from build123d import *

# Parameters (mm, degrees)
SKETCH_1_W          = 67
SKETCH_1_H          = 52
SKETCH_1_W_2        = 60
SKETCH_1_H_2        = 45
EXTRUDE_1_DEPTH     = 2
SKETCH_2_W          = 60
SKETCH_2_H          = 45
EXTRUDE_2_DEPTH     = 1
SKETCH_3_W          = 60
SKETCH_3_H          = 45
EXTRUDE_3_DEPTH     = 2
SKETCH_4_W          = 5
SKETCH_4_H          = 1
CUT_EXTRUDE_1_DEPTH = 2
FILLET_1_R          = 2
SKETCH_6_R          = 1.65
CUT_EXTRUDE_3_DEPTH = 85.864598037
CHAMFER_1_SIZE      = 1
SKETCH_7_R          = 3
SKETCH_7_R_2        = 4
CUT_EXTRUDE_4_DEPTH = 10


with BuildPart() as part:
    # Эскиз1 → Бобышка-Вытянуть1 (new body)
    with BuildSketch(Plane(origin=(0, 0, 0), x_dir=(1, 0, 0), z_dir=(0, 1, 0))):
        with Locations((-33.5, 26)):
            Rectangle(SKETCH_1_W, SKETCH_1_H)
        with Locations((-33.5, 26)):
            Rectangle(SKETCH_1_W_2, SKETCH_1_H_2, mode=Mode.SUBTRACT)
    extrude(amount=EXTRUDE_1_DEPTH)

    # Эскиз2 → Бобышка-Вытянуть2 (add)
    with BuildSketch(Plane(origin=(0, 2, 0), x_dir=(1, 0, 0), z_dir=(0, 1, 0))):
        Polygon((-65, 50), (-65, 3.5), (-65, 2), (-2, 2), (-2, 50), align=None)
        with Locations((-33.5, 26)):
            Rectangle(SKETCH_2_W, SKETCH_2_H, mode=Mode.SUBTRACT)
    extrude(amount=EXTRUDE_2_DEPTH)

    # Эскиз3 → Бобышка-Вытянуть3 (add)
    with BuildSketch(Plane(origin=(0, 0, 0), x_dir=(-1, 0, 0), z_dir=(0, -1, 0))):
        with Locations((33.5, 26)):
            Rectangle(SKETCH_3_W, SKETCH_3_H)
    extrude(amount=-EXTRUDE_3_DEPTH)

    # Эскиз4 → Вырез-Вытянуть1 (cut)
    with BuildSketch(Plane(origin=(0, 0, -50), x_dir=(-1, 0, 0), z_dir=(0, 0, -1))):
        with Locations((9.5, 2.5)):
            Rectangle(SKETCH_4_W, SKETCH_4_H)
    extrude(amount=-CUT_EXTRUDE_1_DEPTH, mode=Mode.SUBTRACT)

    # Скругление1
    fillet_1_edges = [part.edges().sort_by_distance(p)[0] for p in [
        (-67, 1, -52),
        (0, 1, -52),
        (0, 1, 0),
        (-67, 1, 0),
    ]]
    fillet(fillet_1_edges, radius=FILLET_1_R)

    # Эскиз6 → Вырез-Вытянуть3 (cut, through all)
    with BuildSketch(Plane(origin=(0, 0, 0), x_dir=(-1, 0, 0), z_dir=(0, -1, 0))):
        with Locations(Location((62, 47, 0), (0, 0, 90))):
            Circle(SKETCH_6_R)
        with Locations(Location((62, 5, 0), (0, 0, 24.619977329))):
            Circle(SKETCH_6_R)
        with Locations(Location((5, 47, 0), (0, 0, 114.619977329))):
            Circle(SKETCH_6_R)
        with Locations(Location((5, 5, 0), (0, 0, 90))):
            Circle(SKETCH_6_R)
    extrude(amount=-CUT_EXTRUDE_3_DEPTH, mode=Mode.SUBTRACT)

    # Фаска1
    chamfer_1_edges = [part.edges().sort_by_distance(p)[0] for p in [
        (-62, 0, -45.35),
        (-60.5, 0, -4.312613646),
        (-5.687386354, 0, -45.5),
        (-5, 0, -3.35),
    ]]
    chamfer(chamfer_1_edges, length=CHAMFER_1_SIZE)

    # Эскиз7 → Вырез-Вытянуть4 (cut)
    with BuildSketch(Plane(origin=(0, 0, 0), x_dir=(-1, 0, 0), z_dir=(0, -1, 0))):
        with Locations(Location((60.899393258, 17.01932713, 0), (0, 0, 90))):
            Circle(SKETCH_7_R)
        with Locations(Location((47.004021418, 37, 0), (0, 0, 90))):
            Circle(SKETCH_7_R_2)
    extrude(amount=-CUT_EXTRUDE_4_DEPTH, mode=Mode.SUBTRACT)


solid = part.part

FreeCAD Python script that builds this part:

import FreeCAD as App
import Part
import Sketcher


def edges_at(feature, points):
    """Names of the edges that pass closest to the given points."""
    edges = feature.Shape.Edges
    near = lambda p: min(range(len(edges)), key=lambda i: edges[i].distToShape(Part.Vertex(*p))[0])
    return sorted({f"Edge{near(p) + 1}" for p in points})

doc = App.newDocument("Part")
params = doc.addObject("Spreadsheet::Sheet", "Params")
for row, (alias, value) in enumerate([
    ("sketch1_width", "67 mm"),
    ("sketch1_width2", "60 mm"),
    ("sketch1_height", "52 mm"),
    ("sketch1_height2", "45 mm"),
    ("pad1_length", "2 mm"),
    ("sketch2_width", "63 mm"),
    ("sketch2_width2", "60 mm"),
    ("sketch2_height", "48 mm"),
    ("sketch2_height2", "45 mm"),
    ("pad2_length", "1 mm"),
    ("sketch3_width", "60 mm"),
    ("sketch3_height", "45 mm"),
    ("pad3_length", "2 mm"),
    ("sketch4_width", "5 mm"),
    ("sketch4_height", "1 mm"),
    ("pocket1_length", "2 mm"),
    ("fillet_radius", "2 mm"),
    ("sketch5_diameter", "3.3 mm"),
    ("chamfer_size", "1 mm"),
    ("sketch6_diameter", "6 mm"),
    ("sketch6_diameter2", "8 mm"),
    ("pocket3_length", "10 mm"),
], start=1):
    params.set(f"A{row}", alias)
    params.set(f"B{row}", "=" + value)
    params.setAlias(f"B{row}", alias)

body = doc.addObject("PartDesign::Body", "Body")

# Sketch on XZ plane
sketch1 = body.newObject("Sketcher::SketchObject", "Sketch")
sketch1.AttachmentSupport = (doc.getObject("XZ_Plane"), [""])
sketch1.MapMode = "FlatFace"
sketch1.addGeometry([
    Part.LineSegment(App.Vector(-67, -52, 0), App.Vector(-67, 0, 0)),  # 0
    Part.LineSegment(App.Vector(-67, 0, 0), App.Vector(0, 0, 0)),  # 1
    Part.LineSegment(App.Vector(0, 0, 0), App.Vector(0, -52, 0)),  # 2
    Part.LineSegment(App.Vector(0, -52, 0), App.Vector(-67, -52, 0)),  # 3
    Part.LineSegment(App.Vector(-4, -4, 0), App.Vector(-64, -4, 0)),  # 4
    Part.LineSegment(App.Vector(-64, -4, 0), App.Vector(-64, -48, 0)),  # 5
    Part.LineSegment(App.Vector(-64, -48, 0), App.Vector(-4, -48, 0)),  # 6
    Part.LineSegment(App.Vector(-4, -48, 0), App.Vector(-4, -4, 0)),  # 7
], False)
sketch1.addConstraint([
    Sketcher.Constraint("Coincident", 0, 2, 1, 1),
    Sketcher.Constraint("Coincident", 1, 2, 2, 1),
    Sketcher.Constraint("Coincident", 2, 2, 3, 1),
    Sketcher.Constraint("Coincident", 3, 2, 0, 1),
    Sketcher.Constraint("Coincident", 4, 2, 5, 1),
    Sketcher.Constraint("Coincident", 5, 2, 6, 1),
    Sketcher.Constraint("Coincident", 6, 2, 7, 1),
    Sketcher.Constraint("Coincident", 7, 2, 4, 1),
    Sketcher.Constraint("Vertical", 0),
    Sketcher.Constraint("Horizontal", 1),
    Sketcher.Constraint("Vertical", 2),
    Sketcher.Constraint("Horizontal", 3),
    Sketcher.Constraint("Horizontal", 4),
    Sketcher.Constraint("Vertical", 5),
    Sketcher.Constraint("Horizontal", 6),
    Sketcher.Constraint("Vertical", 7),
    Sketcher.Constraint("Coincident", 1, 2, -1, 1),
    Sketcher.Constraint("DistanceX", 1, 1, 1, 2, 67.0),
    Sketcher.Constraint("DistanceX", 4, 2, 4, 1, 60.0),
    Sketcher.Constraint("DistanceY", 0, 1, 0, 2, 52.0),
    Sketcher.Constraint("DistanceY", 5, 2, 5, 1, 45.0),
    Sketcher.Constraint("DistanceX", 4, 2, -1, 1, 63.5),
    Sketcher.Constraint("DistanceY", 4, 2, -1, 1, 3.5),
])
sketch1.setExpression("Constraints[17]", "Params.sketch1_width")
sketch1.setExpression("Constraints[18]", "Params.sketch1_width2")
sketch1.setExpression("Constraints[19]", "Params.sketch1_height")
sketch1.setExpression("Constraints[20]", "Params.sketch1_height2")
pad1 = body.newObject("PartDesign::Pad", "Pad")
pad1.Profile = sketch1
pad1.setExpression("Length", "Params.pad1_length")
pad1.Reversed = True

# Sketch on XZ plane
sketch2 = body.newObject("Sketcher::SketchObject", "Sketch001")
sketch2.AttachmentSupport = (doc.getObject("XZ_Plane"), [""])
sketch2.MapMode = "FlatFace"
sketch2.AttachmentOffset = App.Placement(App.Vector(0, 0, -2), App.Rotation())
sketch2.addGeometry([
    Part.LineSegment(App.Vector(-65, -50, 0), App.Vector(-65, -2, 0)),  # 0
    Part.LineSegment(App.Vector(-65, -2, 0), App.Vector(-2, -2, 0)),  # 1
    Part.LineSegment(App.Vector(-2, -2, 0), App.Vector(-2, -50, 0)),  # 2
    Part.LineSegment(App.Vector(-2, -50, 0), App.Vector(-65, -50, 0)),  # 3
    Part.LineSegment(App.Vector(-4, -4, 0), App.Vector(-64, -4, 0)),  # 4
    Part.LineSegment(App.Vector(-64, -4, 0), App.Vector(-64, -48, 0)),  # 5
    Part.LineSegment(App.Vector(-64, -48, 0), App.Vector(-4, -48, 0)),  # 6
    Part.LineSegment(App.Vector(-4, -48, 0), App.Vector(-4, -4, 0)),  # 7
], False)
sketch2.addConstraint([
    Sketcher.Constraint("Coincident", 0, 2, 1, 1),
    Sketcher.Constraint("Coincident", 1, 2, 2, 1),
    Sketcher.Constraint("Coincident", 2, 2, 3, 1),
    Sketcher.Constraint("Coincident", 3, 2, 0, 1),
    Sketcher.Constraint("Coincident", 4, 2, 5, 1),
    Sketcher.Constraint("Coincident", 5, 2, 6, 1),
    Sketcher.Constraint("Coincident", 6, 2, 7, 1),
    Sketcher.Constraint("Coincident", 7, 2, 4, 1),
    Sketcher.Constraint("Vertical", 0),
    Sketcher.Constraint("Horizontal", 1),
    Sketcher.Constraint("Vertical", 2),
    Sketcher.Constraint("Horizontal", 3),
    Sketcher.Constraint("Horizontal", 4),
    Sketcher.Constraint("Vertical", 5),
    Sketcher.Constraint("Horizontal", 6),
    Sketcher.Constraint("Vertical", 7),
    Sketcher.Constraint("DistanceX", 1, 1, 1, 2, 63.0),
    Sketcher.Constraint("DistanceX", 4, 2, 4, 1, 60.0),
    Sketcher.Constraint("DistanceY", 0, 1, 0, 2, 48.0),
    Sketcher.Constraint("DistanceY", 5, 2, 5, 1, 45.0),
    Sketcher.Constraint("DistanceX", 0, 2, -1, 1, 65.0),
    Sketcher.Constraint("DistanceY", 0, 2, -1, 1, 2.0),
    Sketcher.Constraint("DistanceX", 4, 2, -1, 1, 63.5),
    Sketcher.Constraint("DistanceY", 4, 2, -1, 1, 3.5),
])
sketch2.setExpression("Constraints[16]", "Params.sketch2_width")
sketch2.setExpression("Constraints[17]", "Params.sketch2_width2")
sketch2.setExpression("Constraints[18]", "Params.sketch2_height")
sketch2.setExpression("Constraints[19]", "Params.sketch2_height2")
pad2 = body.newObject("PartDesign::Pad", "Pad001")
pad2.Profile = sketch2
pad2.setExpression("Length", "Params.pad2_length")
pad2.Reversed = True

# Sketch on XZ plane
sketch3 = body.newObject("Sketcher::SketchObject", "Sketch002")
sketch3.AttachmentSupport = (doc.getObject("XZ_Plane"), [""])
sketch3.MapMode = "FlatFace"
sketch3.addGeometry([
    Part.LineSegment(App.Vector(-4, -48, 0), App.Vector(-4, -4, 0)),
    Part.LineSegment(App.Vector(-4, -4, 0), App.Vector(-64, -4, 0)),
    Part.LineSegment(App.Vector(-64, -4, 0), App.Vector(-64, -48, 0)),
    Part.LineSegment(App.Vector(-64, -48, 0), App.Vector(-4, -48, 0)),
], False)
sketch3.addConstraint([
    Sketcher.Constraint("Coincident", 0, 2, 1, 1),
    Sketcher.Constraint("Coincident", 1, 2, 2, 1),
    Sketcher.Constraint("Coincident", 2, 2, 3, 1),
    Sketcher.Constraint("Coincident", 3, 2, 0, 1),
    Sketcher.Constraint("Vertical", 0),
    Sketcher.Constraint("Horizontal", 1),
    Sketcher.Constraint("Vertical", 2),
    Sketcher.Constraint("Horizontal", 3),
    Sketcher.Constraint("DistanceX", 1, 2, 1, 1, 60.0),
    Sketcher.Constraint("DistanceY", 0, 1, 0, 2, 45.0),
    Sketcher.Constraint("DistanceX", 0, 2, -1, 1, 3.5),
    Sketcher.Constraint("DistanceY", 0, 2, -1, 1, 3.5),
])
sketch3.setExpression("Constraints[8]", "Params.sketch3_width")
sketch3.setExpression("Constraints[9]", "Params.sketch3_height")
pad3 = body.newObject("PartDesign::Pad", "Pad002")
pad3.Profile = sketch3
pad3.setExpression("Length", "Params.pad3_length")
pad3.Reversed = True

# Sketch on XY plane
sketch4 = body.newObject("Sketcher::SketchObject", "Sketch003")
sketch4.AttachmentSupport = (doc.getObject("XY_Plane"), [""])
sketch4.MapMode = "FlatFace"
sketch4.AttachmentOffset = App.Placement(App.Vector(0, 0, -50), App.Rotation())
sketch4.addGeometry([
    Part.LineSegment(App.Vector(-7, 3, 0), App.Vector(-7, 2, 0)),
    Part.LineSegment(App.Vector(-7, 2, 0), App.Vector(-12, 2, 0)),
    Part.LineSegment(App.Vector(-12, 2, 0), App.Vector(-12, 3, 0)),
    Part.LineSegment(App.Vector(-12, 3, 0), App.Vector(-7, 3, 0)),
], False)
sketch4.addConstraint([
    Sketcher.Constraint("Coincident", 0, 2, 1, 1),
    Sketcher.Constraint("Coincident", 1, 2, 2, 1),
    Sketcher.Constraint("Coincident", 2, 2, 3, 1),
    Sketcher.Constraint("Coincident", 3, 2, 0, 1),
    Sketcher.Constraint("Vertical", 0),
    Sketcher.Constraint("Horizontal", 1),
    Sketcher.Constraint("Vertical", 2),
    Sketcher.Constraint("Horizontal", 3),
    Sketcher.Constraint("DistanceX", 1, 2, 1, 1, 5.0),
    Sketcher.Constraint("DistanceY", 0, 2, 0, 1, 1.0),
    Sketcher.Constraint("DistanceX", 0, 2, -1, 1, 7.0),
    Sketcher.Constraint("DistanceY", -1, 1, 0, 2, 2.0),
])
sketch4.setExpression("Constraints[8]", "Params.sketch4_width")
sketch4.setExpression("Constraints[9]", "Params.sketch4_height")
pocket1 = body.newObject("PartDesign::Pocket", "Pocket")
pocket1.Profile = sketch4
pocket1.setExpression("Length", "Params.pocket1_length")
pocket1.Reversed = True
doc.recompute()

fillet = body.newObject("PartDesign::Fillet", "Fillet")
fillet.Base = (pocket1, edges_at(pocket1, [
    (-67, 1, -52),
    (0, 1, -52),
    (0, 1, 0),
    (-67, 1, 0),
]))
fillet.setExpression("Radius", "Params.fillet_radius")

# Sketch on XZ plane
sketch5 = body.newObject("Sketcher::SketchObject", "Sketch004")
sketch5.AttachmentSupport = (doc.getObject("XZ_Plane"), [""])
sketch5.MapMode = "FlatFace"
sketch5.addGeometry([
    Part.Circle(App.Vector(-62, -47, 0), App.Vector(0, 0, 1), 1.6),
    Part.Circle(App.Vector(-62, -5, 0), App.Vector(0, 0, 1), 1.6),
    Part.Circle(App.Vector(-5, -47, 0), App.Vector(0, 0, 1), 1.6),
    Part.Circle(App.Vector(-5, -5, 0), App.Vector(0, 0, 1), 1.6),
], False)
sketch5.addConstraint([
    Sketcher.Constraint("Equal", 0, 1),
    Sketcher.Constraint("Equal", 1, 2),
    Sketcher.Constraint("Equal", 2, 3),
    Sketcher.Constraint("Horizontal", 0, 3, 2, 3),
    Sketcher.Constraint("Horizontal", 1, 3, 3, 3),
    Sketcher.Constraint("Vertical", 0, 3, 1, 3),
    Sketcher.Constraint("Vertical", 2, 3, 3, 3),
    Sketcher.Constraint("Diameter", 0, 3.3),
    Sketcher.Constraint("DistanceX", 0, 3, -1, 1, 62.0),
    Sketcher.Constraint("DistanceY", 0, 3, -1, 1, 47.0),
    Sketcher.Constraint("DistanceY", 1, 3, -1, 1, 5.0),
    Sketcher.Constraint("DistanceX", 2, 3, -1, 1, 5.0),
])
sketch5.setExpression("Constraints[7]", "Params.sketch5_diameter")
pocket2 = body.newObject("PartDesign::Pocket", "Pocket001")
pocket2.Profile = sketch5
pocket2.Type = "ThroughAll"
doc.recompute()

chamfer = body.newObject("PartDesign::Chamfer", "Chamfer")
chamfer.Base = (pocket2, edges_at(pocket2, [
    (-62, 0, -45.35),
    (-60.5, 0, -4.313),
    (-5.687, 0, -45.5),
    (-5, 0, -3.35),
]))
chamfer.setExpression("Size", "Params.chamfer_size")

# Sketch on XZ plane
sketch6 = body.newObject("Sketcher::SketchObject", "Sketch005")
sketch6.AttachmentSupport = (doc.getObject("XZ_Plane"), [""])
sketch6.MapMode = "FlatFace"
sketch6.addGeometry([
    Part.Circle(App.Vector(-60.9, -17, 0), App.Vector(0, 0, 1), 3),
    Part.Circle(App.Vector(-47, -37, 0), App.Vector(0, 0, 1), 4),
], False)
sketch6.addConstraint([
    Sketcher.Constraint("Diameter", 0, 6.0),
    Sketcher.Constraint("Diameter", 1, 8.0),
    Sketcher.Constraint("DistanceY", 1, 3, -1, 1, 37.0),
    Sketcher.Constraint("DistanceX", 1, 3, -1, 1, 47.004021),
    Sketcher.Constraint("DistanceX", 0, 3, 1, 3, 13.895372),
    Sketcher.Constraint("DistanceY", 0, 3, -1, 1, 17.019327),
])
sketch6.setExpression("Constraints[0]", "Params.sketch6_diameter")
sketch6.setExpression("Constraints[1]", "Params.sketch6_diameter2")
pocket3 = body.newObject("PartDesign::Pocket", "Pocket002")
pocket3.Profile = sketch6
pocket3.setExpression("Length", "Params.pocket3_length")

doc.recompute()
